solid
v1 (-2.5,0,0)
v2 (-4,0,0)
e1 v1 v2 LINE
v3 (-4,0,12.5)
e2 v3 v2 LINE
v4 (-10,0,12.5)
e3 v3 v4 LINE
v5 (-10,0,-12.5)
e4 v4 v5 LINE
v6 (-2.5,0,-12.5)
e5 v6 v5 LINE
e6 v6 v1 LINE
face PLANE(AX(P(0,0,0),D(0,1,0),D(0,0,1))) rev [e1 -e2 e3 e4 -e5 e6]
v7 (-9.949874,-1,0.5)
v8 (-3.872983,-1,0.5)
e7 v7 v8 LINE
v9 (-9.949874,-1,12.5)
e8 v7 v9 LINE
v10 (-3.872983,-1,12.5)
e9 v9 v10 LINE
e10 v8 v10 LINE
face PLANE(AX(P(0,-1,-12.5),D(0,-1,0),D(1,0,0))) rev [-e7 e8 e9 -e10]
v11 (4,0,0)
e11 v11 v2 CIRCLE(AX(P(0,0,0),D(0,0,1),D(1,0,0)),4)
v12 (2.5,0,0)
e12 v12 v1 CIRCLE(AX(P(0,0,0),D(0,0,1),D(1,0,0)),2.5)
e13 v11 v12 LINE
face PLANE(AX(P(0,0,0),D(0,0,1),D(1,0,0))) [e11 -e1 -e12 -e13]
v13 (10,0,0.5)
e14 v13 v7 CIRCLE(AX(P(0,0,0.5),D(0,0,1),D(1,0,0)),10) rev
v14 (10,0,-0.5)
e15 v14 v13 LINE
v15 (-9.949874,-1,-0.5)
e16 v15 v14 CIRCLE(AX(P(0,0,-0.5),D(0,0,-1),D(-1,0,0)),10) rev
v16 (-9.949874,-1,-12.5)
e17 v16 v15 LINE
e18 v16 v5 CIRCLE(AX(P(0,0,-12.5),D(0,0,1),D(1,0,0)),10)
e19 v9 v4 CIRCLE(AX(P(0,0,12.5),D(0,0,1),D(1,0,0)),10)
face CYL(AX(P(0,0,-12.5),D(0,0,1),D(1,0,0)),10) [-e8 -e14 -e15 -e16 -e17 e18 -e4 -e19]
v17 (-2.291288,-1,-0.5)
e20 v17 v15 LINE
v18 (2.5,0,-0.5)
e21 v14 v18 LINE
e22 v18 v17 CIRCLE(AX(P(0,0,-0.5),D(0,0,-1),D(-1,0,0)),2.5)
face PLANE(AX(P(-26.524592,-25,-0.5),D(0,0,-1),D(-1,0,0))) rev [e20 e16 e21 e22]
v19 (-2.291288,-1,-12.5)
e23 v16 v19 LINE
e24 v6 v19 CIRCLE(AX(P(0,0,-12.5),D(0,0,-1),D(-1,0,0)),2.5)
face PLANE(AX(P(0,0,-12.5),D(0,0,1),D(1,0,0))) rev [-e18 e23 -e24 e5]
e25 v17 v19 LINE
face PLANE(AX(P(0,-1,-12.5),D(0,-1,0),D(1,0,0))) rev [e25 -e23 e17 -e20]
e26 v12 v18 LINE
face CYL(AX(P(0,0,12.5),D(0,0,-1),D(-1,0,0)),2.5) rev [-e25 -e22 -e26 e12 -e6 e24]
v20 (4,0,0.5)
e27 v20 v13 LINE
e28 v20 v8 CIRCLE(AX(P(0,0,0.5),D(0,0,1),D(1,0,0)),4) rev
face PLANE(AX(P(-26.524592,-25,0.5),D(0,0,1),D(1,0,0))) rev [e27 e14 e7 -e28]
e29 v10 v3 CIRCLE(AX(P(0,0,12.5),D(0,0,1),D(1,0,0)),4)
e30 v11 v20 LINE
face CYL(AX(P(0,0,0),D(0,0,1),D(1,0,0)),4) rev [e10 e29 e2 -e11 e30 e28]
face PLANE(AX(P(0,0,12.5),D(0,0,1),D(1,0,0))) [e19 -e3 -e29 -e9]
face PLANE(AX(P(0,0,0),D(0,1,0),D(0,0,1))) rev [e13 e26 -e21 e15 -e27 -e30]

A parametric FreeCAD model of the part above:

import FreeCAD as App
import Part
import Sketcher

doc = App.newDocument("Part")
body = doc.addObject("PartDesign::Body", "Body")

sketch1 = doc.addObject("Sketcher::SketchObject", "Sketch")
body.addObject(sketch1)
sketch1.AttachmentSupport = (doc.XY_Plane, [""])
sketch1.MapMode = "FlatFace"
sketch1.addGeometry(Part.Circle(App.Vector(0, 0, 0), App.Vector(0, 0, 1), 10), False)
sketch1.addConstraint([
    Sketcher.Constraint("Coincident", 0, 3, -1, 1),
    Sketcher.Constraint("Diameter", 0, 20.0),
])
pad1 = doc.addObject("PartDesign::Pad", "Pad")
body.addObject(pad1)
pad1.Profile = sketch1
pad1.Length = 25
pad1.Midplane = True

sketch2 = doc.addObject("Sketcher::SketchObject", "Sketch001")
body.addObject(sketch2)
sketch2.AttachmentSupport = (doc.XY_Plane, [""])
sketch2.MapMode = "FlatFace"
sketch2.AttachmentOffset = App.Placement(App.Vector(0, 0, 12.5), App.Rotation())
sketch2.addGeometry(Part.Circle(App.Vector(0, 0, 0), App.Vector(0, 0, 1), 4), False)
sketch2.addConstraint([
    Sketcher.Constraint("Coincident", 0, 3, -1, 1),
    Sketcher.Constraint("Diameter", 0, 8.0),
])
pocket1 = doc.addObject("PartDesign::Pocket", "Pocket")
body.addObject(pocket1)
pocket1.Profile = sketch2
pocket1.Length = 12.5

sketch3 = doc.addObject("Sketcher::SketchObject", "Sketch002")
body.addObject(sketch3)
sketch3.AttachmentSupport = (doc.XZ_Plane, [""])
sketch3.MapMode = "FlatFace"
sketch3.addGeometry([
    Part.LineSegment(App.Vector(-26.524592, -0.5, 0), App.Vector(-26.524592, 0.5, 0)),
    Part.LineSegment(App.Vector(-26.524592, 0.5, 0), App.Vector(26.524592, 0.5, 0)),
    Part.LineSegment(App.Vector(26.524592, 0.5, 0), App.Vector(26.524592, -0.5, 0)),
    Part.LineSegment(App.Vector(26.524592, -0.5, 0), App.Vector(-26.524592, -0.5, 0)),
], False)
sketch3.addConstraint([
    Sketcher.Constraint("Coincident", 0, 2, 1, 1),
    Sketcher.Constraint("Coincident", 1, 2, 2, 1),
    Sketcher.Constraint("Coincident", 2, 2, 3, 1),
    Sketcher.Constraint("Coincident", 3, 2, 0, 1),
    Sketcher.Constraint("Vertical", 0),
    Sketcher.Constraint("Horizontal", 1),
    Sketcher.Constraint("Vertical", 2),
    Sketcher.Constraint("Horizontal", 3),
    Sketcher.Constraint("Symmetric", 0, 2, 2, 2, -1, 1),
    Sketcher.Constraint("DistanceY", 0, 1, 0, 2, 1.0),
    Sketcher.Constraint("DistanceX", 1, 1, 1, 2, 53.049185),
])
pocket2 = doc.addObject("PartDesign::Pocket", "Pocket001")
body.addObject(pocket2)
pocket2.Profile = sketch3
pocket2.Length = 25
pocket2.Reversed = True

sketch4 = doc.addObject("Sketcher::SketchObject", "Sketch003")
body.addObject(sketch4)
sketch4.AttachmentSupport = (doc.XY_Plane, [""])
sketch4.MapMode = "FlatFace"
sketch4.AttachmentOffset = App.Placement(App.Vector(0, 0, 12.5), App.Rotation())
sketch4.addGeometry([
    Part.LineSegment(App.Vector(-15.903553, 0, 0), App.Vector(-15.903553, -1, 0)),
    Part.LineSegment(App.Vector(-15.903553, -1, 0), App.Vector(0, -1, 0)),
    Part.LineSegment(App.Vector(0, -1, 0), App.Vector(0, 0, 0)),
    Part.LineSegment(App.Vector(0, 0, 0), App.Vector(-15.903553, 0, 0)),
], False)
sketch4.addConstraint([
    Sketcher.Constraint("Coincident", 0, 2, 1, 1),
    Sketcher.Constraint("Coincident", 1, 2, 2, 1),
    Sketcher.Constraint("Coincident", 2, 2, 3, 1),
    Sketcher.Constraint("Coincident", 3, 2, 0, 1),
    Sketcher.Constraint("Vertical", 0),
    Sketcher.Constraint("Horizontal", 1),
    Sketcher.Constraint("Vertical", 2),
    Sketcher.Constraint("Horizontal", 3),
    Sketcher.Constraint("Coincident", 2, 2, -1, 1),
    Sketcher.Constraint("DistanceY", 0, 2, 0, 1, 1.0),
    Sketcher.Constraint("DistanceX", 1, 1, 1, 2, 15.903553),
])
pocket3 = doc.addObject("PartDesign::Pocket", "Pocket002")
body.addObject(pocket3)
pocket3.Profile = sketch4
pocket3.Length = 25

sketch5 = doc.addObject("Sketcher::SketchObject", "Sketch004")
body.addObject(sketch5)
sketch5.AttachmentSupport = (doc.XY_Plane, [""])
sketch5.MapMode = "FlatFace"
sketch5.AttachmentOffset = App.Placement(App.Vector(0, 0, -12.5), App.Rotation())
sketch5.addGeometry(Part.Circle(App.Vector(0, 0, 0), App.Vector(0, 0, 1), 2.5), False)
sketch5.addConstraint([
    Sketcher.Constraint("Coincident", 0, 3, -1, 1),
    Sketcher.Constraint("Diameter", 0, 5.0),
])
pocket4 = doc.addObject("PartDesign::Pocket", "Pocket003")
body.addObject(pocket4)
pocket4.Profile = sketch5
pocket4.Length = 25
pocket4.Reversed = True

doc.recompute()
